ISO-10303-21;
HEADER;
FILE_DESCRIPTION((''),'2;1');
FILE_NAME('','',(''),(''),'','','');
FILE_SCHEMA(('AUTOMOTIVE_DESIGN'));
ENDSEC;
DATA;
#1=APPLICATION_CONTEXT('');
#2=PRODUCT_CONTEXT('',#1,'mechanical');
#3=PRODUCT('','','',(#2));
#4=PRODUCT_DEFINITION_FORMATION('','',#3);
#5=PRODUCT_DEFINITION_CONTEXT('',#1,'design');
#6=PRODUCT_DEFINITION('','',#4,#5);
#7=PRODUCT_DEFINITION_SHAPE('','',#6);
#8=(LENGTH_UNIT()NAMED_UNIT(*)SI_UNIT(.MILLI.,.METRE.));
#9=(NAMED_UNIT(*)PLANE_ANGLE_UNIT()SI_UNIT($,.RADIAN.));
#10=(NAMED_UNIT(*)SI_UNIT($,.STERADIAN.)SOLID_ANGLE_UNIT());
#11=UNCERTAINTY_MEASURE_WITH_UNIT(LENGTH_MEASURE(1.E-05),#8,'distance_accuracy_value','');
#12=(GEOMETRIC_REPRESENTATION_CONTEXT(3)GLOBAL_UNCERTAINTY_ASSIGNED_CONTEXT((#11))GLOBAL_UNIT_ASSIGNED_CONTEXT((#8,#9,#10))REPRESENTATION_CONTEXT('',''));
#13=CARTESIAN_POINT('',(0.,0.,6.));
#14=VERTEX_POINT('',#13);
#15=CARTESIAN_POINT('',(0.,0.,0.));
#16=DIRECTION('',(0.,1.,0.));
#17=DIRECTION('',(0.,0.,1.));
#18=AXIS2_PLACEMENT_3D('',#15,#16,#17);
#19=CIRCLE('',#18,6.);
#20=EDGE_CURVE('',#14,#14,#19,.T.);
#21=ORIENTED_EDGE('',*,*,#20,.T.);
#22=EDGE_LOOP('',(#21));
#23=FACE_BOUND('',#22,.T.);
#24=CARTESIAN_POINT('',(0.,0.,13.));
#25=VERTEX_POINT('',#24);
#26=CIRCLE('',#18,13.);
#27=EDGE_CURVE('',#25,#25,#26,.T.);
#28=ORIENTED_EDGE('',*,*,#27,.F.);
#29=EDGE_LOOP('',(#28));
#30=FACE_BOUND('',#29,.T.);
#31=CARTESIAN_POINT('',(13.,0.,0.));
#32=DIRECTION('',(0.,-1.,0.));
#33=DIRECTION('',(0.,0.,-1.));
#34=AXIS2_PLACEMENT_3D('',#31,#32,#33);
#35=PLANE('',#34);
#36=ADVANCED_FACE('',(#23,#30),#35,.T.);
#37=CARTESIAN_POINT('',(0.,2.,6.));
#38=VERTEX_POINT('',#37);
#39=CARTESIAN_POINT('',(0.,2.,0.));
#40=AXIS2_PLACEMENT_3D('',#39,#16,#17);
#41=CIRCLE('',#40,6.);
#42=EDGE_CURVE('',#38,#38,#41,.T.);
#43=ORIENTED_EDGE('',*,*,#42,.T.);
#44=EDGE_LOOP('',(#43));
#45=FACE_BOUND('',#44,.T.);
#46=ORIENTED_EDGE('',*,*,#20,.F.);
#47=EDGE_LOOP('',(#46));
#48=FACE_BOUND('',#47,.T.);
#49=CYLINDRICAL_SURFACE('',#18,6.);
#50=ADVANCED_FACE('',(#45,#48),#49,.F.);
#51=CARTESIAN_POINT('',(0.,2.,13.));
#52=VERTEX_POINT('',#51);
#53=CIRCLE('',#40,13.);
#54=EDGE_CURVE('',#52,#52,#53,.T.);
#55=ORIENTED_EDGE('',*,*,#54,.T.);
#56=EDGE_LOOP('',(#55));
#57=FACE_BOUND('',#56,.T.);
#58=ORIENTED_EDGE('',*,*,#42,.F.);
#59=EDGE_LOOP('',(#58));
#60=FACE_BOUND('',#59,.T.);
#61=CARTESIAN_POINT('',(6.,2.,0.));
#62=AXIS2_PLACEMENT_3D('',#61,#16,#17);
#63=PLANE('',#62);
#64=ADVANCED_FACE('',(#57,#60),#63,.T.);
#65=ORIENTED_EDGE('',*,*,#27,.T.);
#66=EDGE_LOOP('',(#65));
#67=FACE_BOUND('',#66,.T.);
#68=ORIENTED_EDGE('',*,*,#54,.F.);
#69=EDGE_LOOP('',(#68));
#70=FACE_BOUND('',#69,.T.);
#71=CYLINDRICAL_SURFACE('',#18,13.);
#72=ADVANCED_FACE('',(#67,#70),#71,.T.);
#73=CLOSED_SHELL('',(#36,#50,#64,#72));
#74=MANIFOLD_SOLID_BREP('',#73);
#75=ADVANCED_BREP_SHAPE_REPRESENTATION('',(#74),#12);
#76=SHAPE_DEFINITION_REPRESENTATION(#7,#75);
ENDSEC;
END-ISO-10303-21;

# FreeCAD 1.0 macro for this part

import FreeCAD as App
import Part
import Sketcher

V = App.Vector
Q = App.Units.Quantity

doc = App.newDocument("Part")
body = doc.addObject("PartDesign::Body", "Body")

# Sketch on XY plane
sketch1 = body.newObject("Sketcher::SketchObject", "Sketch")
sketch1.AttachmentSupport = (doc.getObject("XY_Plane"), [""])
sketch1.MapMode = "FlatFace"
sketch1.addGeometry(Part.LineSegment(V(13, 2, 0), V(13, 0, 0)), False)
sketch1.addGeometry(Part.LineSegment(V(13, 0, 0), V(6, 0, 0)), False)
sketch1.addGeometry(Part.LineSegment(V(6, 0, 0), V(6, 2, 0)), False)
sketch1.addGeometry(Part.LineSegment(V(6, 2, 0), V(13, 2, 0)), False)
sketch1.addConstraint(Sketcher.Constraint("Coincident", 0, 2, 1, 1))
sketch1.addConstraint(Sketcher.Constraint("Coincident", 1, 2, 2, 1))
sketch1.addConstraint(Sketcher.Constraint("Coincident", 2, 2, 3, 1))
sketch1.addConstraint(Sketcher.Constraint("Coincident", 3, 2, 0, 1))
sketch1.addConstraint(Sketcher.Constraint("Vertical", 0))
sketch1.addConstraint(Sketcher.Constraint("Horizontal", 1))
sketch1.addConstraint(Sketcher.Constraint("Vertical", 2))
sketch1.addConstraint(Sketcher.Constraint("Horizontal", 3))
sketch1.addConstraint(Sketcher.Constraint("PointOnObject", 0, 2, -1))
sketch1.addConstraint(Sketcher.Constraint("DistanceX", 1, 2, 1, 1, Q("7 mm")))
sketch1.addConstraint(Sketcher.Constraint("DistanceY", 0, 2, 0, 1, Q("2 mm")))
sketch1.addConstraint(Sketcher.Constraint("DistanceX", -1, 1, 0, 2, Q("13 mm")))
revolution = body.newObject("PartDesign::Revolution", "Revolution")
revolution.Profile = sketch1
revolution.ReferenceAxis = (sketch1, ["V_Axis"])
revolution.Angle = 360

doc.recompute()
